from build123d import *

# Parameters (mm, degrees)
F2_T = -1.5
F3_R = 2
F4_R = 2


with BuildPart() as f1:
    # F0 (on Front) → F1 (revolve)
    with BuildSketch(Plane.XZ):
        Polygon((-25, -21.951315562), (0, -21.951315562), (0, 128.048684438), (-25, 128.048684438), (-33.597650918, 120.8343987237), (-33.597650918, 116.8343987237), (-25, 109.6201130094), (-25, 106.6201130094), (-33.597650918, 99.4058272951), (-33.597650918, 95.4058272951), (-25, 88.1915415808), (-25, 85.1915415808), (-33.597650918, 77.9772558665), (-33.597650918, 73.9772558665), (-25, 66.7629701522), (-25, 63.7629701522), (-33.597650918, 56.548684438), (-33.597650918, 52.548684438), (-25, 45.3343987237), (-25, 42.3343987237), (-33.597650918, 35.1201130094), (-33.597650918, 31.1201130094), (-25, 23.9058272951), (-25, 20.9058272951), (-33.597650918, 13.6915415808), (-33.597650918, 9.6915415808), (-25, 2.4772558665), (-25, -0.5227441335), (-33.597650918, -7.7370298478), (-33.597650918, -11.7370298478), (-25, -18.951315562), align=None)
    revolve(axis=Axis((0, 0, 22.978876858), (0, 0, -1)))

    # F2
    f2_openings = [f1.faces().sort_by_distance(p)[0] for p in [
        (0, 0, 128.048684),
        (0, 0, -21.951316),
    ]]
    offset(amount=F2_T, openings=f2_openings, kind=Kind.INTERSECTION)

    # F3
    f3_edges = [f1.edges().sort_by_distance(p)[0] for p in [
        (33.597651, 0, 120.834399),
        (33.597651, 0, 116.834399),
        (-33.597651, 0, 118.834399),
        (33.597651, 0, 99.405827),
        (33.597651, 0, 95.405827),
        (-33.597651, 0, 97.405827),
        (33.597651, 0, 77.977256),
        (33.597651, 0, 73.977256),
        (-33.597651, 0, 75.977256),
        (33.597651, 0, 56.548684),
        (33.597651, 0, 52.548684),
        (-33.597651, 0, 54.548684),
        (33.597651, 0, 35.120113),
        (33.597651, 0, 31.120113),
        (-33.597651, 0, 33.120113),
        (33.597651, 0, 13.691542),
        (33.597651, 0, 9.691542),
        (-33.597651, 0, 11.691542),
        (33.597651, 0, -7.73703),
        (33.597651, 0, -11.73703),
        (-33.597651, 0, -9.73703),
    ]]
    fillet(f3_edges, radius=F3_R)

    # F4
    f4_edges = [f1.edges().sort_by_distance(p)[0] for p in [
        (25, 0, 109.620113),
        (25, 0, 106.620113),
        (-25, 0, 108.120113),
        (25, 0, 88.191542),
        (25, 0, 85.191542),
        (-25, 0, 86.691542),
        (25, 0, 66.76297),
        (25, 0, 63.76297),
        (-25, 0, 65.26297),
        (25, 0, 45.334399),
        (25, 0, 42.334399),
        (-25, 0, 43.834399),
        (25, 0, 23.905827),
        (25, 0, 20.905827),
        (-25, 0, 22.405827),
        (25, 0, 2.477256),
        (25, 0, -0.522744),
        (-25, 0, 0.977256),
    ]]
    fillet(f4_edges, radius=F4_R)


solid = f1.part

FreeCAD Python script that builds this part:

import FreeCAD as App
import Part
import Sketcher
Q = App.Units.Quantity


def edges_at(feature, points):
    """Names of the edges that pass closest to the given points."""
    edges = feature.Shape.Edges
    near = lambda p: min(range(len(edges)), key=lambda i: edges[i].distToShape(Part.Vertex(*p))[0])
    return sorted({f"Edge{near(p) + 1}" for p in points})


def faces_at(feature, points):
    """Names of the faces that lie closest to the given points."""
    faces = feature.Shape.Faces
    near = lambda p: min(range(len(faces)), key=lambda i: faces[i].distToShape(Part.Vertex(*p))[0])
    return sorted({f"Face{near(p) + 1}" for p in points})

doc = App.newDocument("Part")
body = doc.addObject("PartDesign::Body", "Body")

sketch1 = doc.addObject("Sketcher::SketchObject", "Sketch")
body.addObject(sketch1)
sketch1.AttachmentSupport = (doc.XZ_Plane, [""])
sketch1.MapMode = "FlatFace"
sketch1.addGeometry(Part.LineSegment(App.Vector(-25, -21.951316, 0), App.Vector(0, -21.951316, 0)), False)
sketch1.addGeometry(Part.LineSegment(App.Vector(0, -21.951316, 0), App.Vector(0, 128.048684, 0)), False)
sketch1.addGeometry(Part.LineSegment(App.Vector(0, 128.048684, 0), App.Vector(-25, 128.048684, 0)), False)
sketch1.addGeometry(Part.LineSegment(App.Vector(-25, 128.048684, 0), App.Vector(-33.597651, 120.834399, 0)), False)
sketch1.addGeometry(Part.LineSegment(App.Vector(-33.597651, 120.834399, 0), App.Vector(-33.597651, 116.834399, 0)), False)
sketch1.addGeometry(Part.LineSegment(App.Vector(-33.597651, 116.834399, 0), App.Vector(-25, 109.620113, 0)), False)
sketch1.addGeometry(Part.LineSegment(App.Vector(-25, 109.620113, 0), App.Vector(-25, 106.620113, 0)), False)
sketch1.addGeometry(Part.LineSegment(App.Vector(-25, 106.620113, 0), App.Vector(-33.597651, 99.405827, 0)), False)
sketch1.addGeometry(Part.LineSegment(App.Vector(-33.597651, 99.405827, 0), App.Vector(-33.597651, 95.405827, 0)), False)
sketch1.addGeometry(Part.LineSegment(App.Vector(-33.597651, 95.405827, 0), App.Vector(-25, 88.191542, 0)), False)
sketch1.addGeometry(Part.LineSegment(App.Vector(-25, 88.191542, 0), App.Vector(-25, 85.191542, 0)), False)
sketch1.addGeometry(Part.LineSegment(App.Vector(-25, 85.191542, 0), App.Vector(-33.597651, 77.977256, 0)), False)
sketch1.addGeometry(Part.LineSegment(App.Vector(-33.597651, 77.977256, 0), App.Vector(-33.597651, 73.977256, 0)), False)
sketch1.addGeometry(Part.LineSegment(App.Vector(-33.597651, 73.977256, 0), App.Vector(-25, 66.76297, 0)), False)
sketch1.addGeometry(Part.LineSegment(App.Vector(-25, 66.76297, 0), App.Vector(-25, 63.76297, 0)), False)
sketch1.addGeometry(Part.LineSegment(App.Vector(-25, 63.76297, 0), App.Vector(-33.597651, 56.548684, 0)), False)
sketch1.addGeometry(Part.LineSegment(App.Vector(-33.597651, 56.548684, 0), App.Vector(-33.597651, 52.548684, 0)), False)
sketch1.addGeometry(Part.LineSegment(App.Vector(-33.597651, 52.548684, 0), App.Vector(-25, 45.334399, 0)), False)
sketch1.addGeometry(Part.LineSegment(App.Vector(-25, 45.334399, 0), App.Vector(-25, 42.334399, 0)), False)
sketch1.addGeometry(Part.LineSegment(App.Vector(-25, 42.334399, 0), App.Vector(-33.597651, 35.120113, 0)), False)
sketch1.addGeometry(Part.LineSegment(App.Vector(-33.597651, 35.120113, 0), App.Vector(-33.597651, 31.120113, 0)), False)
sketch1.addGeometry(Part.LineSegment(App.Vector(-33.597651, 31.120113, 0), App.Vector(-25, 23.905827, 0)), False)
sketch1.addGeometry(Part.LineSegment(App.Vector(-25, 23.905827, 0), App.Vector(-25, 20.905827, 0)), False)
sketch1.addGeometry(Part.LineSegment(App.Vector(-25, 20.905827, 0), App.Vector(-33.597651, 13.691542, 0)), False)
sketch1.addGeometry(Part.LineSegment(App.Vector(-33.597651, 13.691542, 0), App.Vector(-33.597651, 9.691542, 0)), False)
sketch1.addGeometry(Part.LineSegment(App.Vector(-33.597651, 9.691542, 0), App.Vector(-25, 2.477256, 0)), False)
sketch1.addGeometry(Part.LineSegment(App.Vector(-25, 2.477256, 0), App.Vector(-25, -0.522744, 0)), False)
sketch1.addGeometry(Part.LineSegment(App.Vector(-25, -0.522744, 0), App.Vector(-33.597651, -7.73703, 0)), False)
sketch1.addGeometry(Part.LineSegment(App.Vector(-33.597651, -7.73703, 0), App.Vector(-33.597651, -11.73703, 0)), False)
sketch1.addGeometry(Part.LineSegment(App.Vector(-33.597651, -11.73703, 0), App.Vector(-25, -18.951316, 0)), False)
sketch1.addGeometry(Part.LineSegment(App.Vector(-25, -18.951316, 0), App.Vector(-25, -21.951316, 0)), False)
sketch1.addConstraint(Sketcher.Constraint("Coincident", 0, 2, 1, 1))
sketch1.addConstraint(Sketcher.Constraint("Coincident", 1, 2, 2, 1))
sketch1.addConstraint(Sketcher.Constraint("Coincident", 2, 2, 3, 1))
sketch1.addConstraint(Sketcher.Constraint("Coincident", 3, 2, 4, 1))
sketch1.addConstraint(Sketcher.Constraint("Coincident", 4, 2, 5, 1))
sketch1.addConstraint(Sketcher.Constraint("Coincident", 5, 2, 6, 1))
sketch1.addConstraint(Sketcher.Constraint("Coincident", 6, 2, 7, 1))
sketch1.addConstraint(Sketcher.Constraint("Coincident", 7, 2, 8, 1))
sketch1.addConstraint(Sketcher.Constraint("Coincident", 8, 2, 9, 1))
sketch1.addConstraint(Sketcher.Constraint("Coincident", 9, 2, 10, 1))
sketch1.addConstraint(Sketcher.Constraint("Coincident", 10, 2, 11, 1))
sketch1.addConstraint(Sketcher.Constraint("Coincident", 11, 2, 12, 1))
sketch1.addConstraint(Sketcher.Constraint("Coincident", 12, 2, 13, 1))
sketch1.addConstraint(Sketcher.Constraint("Coincident", 13, 2, 14, 1))
sketch1.addConstraint(Sketcher.Constraint("Coincident", 14, 2, 15, 1))
sketch1.addConstraint(Sketcher.Constraint("Coincident", 15, 2, 16, 1))
sketch1.addConstraint(Sketcher.Constraint("Coincident", 16, 2, 17, 1))
sketch1.addConstraint(Sketcher.Constraint("Coincident", 17, 2, 18, 1))
sketch1.addConstraint(Sketcher.Constraint("Coincident", 18, 2, 19, 1))
sketch1.addConstraint(Sketcher.Constraint("Coincident", 19, 2, 20, 1))
sketch1.addConstraint(Sketcher.Constraint("Coincident", 20, 2, 21, 1))
sketch1.addConstraint(Sketcher.Constraint("Coincident", 21, 2, 22, 1))
sketch1.addConstraint(Sketcher.Constraint("Coincident", 22, 2, 23, 1))
sketch1.addConstraint(Sketcher.Constraint("Coincident", 23, 2, 24, 1))
sketch1.addConstraint(Sketcher.Constraint("Coincident", 24, 2, 25, 1))
sketch1.addConstraint(Sketcher.Constraint("Coincident", 25, 2, 26, 1))
sketch1.addConstraint(Sketcher.Constraint("Coincident", 26, 2, 27, 1))
sketch1.addConstraint(Sketcher.Constraint("Coincident", 27, 2, 28, 1))
sketch1.addConstraint(Sketcher.Constraint("Coincident", 28, 2, 29, 1))
sketch1.addConstraint(Sketcher.Constraint("Coincident", 29, 2, 30, 1))
sketch1.addConstraint(Sketcher.Constraint("Coincident", 30, 2, 0, 1))
sketch1.addConstraint(Sketcher.Constraint("Horizontal", 0))
sketch1.addConstraint(Sketcher.Constraint("Vertical", 1))
sketch1.addConstraint(Sketcher.Constraint("Horizontal", 2))
sketch1.addConstraint(Sketcher.Constraint("Vertical", 4))
sketch1.addConstraint(Sketcher.Constraint("Vertical", 6))
sketch1.addConstraint(Sketcher.Constraint("Vertical", 8))
sketch1.addConstraint(Sketcher.Constraint("Vertical", 10))
sketch1.addConstraint(Sketcher.Constraint("Vertical", 12))
sketch1.addConstraint(Sketcher.Constraint("Vertical", 14))
sketch1.addConstraint(Sketcher.Constraint("Vertical", 16))
sketch1.addConstraint(Sketcher.Constraint("Vertical", 18))
sketch1.addConstraint(Sketcher.Constraint("Vertical", 20))
sketch1.addConstraint(Sketcher.Constraint("Vertical", 22))
sketch1.addConstraint(Sketcher.Constraint("Vertical", 24))
sketch1.addConstraint(Sketcher.Constraint("Vertical", 26))
sketch1.addConstraint(Sketcher.Constraint("Vertical", 28))
sketch1.addConstraint(Sketcher.Constraint("Vertical", 30))
sketch1.addConstraint(Sketcher.Constraint("PointOnObject", 0, 2, -2))
sketch1.addConstraint(Sketcher.Constraint("Parallel", 3, 7))
sketch1.addConstraint(Sketcher.Constraint("Parallel", 5, 9))
sketch1.addConstraint(Sketcher.Constraint("Parallel", 7, 11))
sketch1.addConstraint(Sketcher.Constraint("Parallel", 9, 13))
sketch1.addConstraint(Sketcher.Constraint("Parallel", 11, 15))
sketch1.addConstraint(Sketcher.Constraint("Parallel", 13, 17))
sketch1.addConstraint(Sketcher.Constraint("Parallel", 15, 19))
sketch1.addConstraint(Sketcher.Constraint("Parallel", 17, 21))
sketch1.addConstraint(Sketcher.Constraint("Parallel", 19, 23))
sketch1.addConstraint(Sketcher.Constraint("Parallel", 21, 25))
sketch1.addConstraint(Sketcher.Constraint("Parallel", 23, 27))
sketch1.addConstraint(Sketcher.Constraint("Parallel", 25, 29))
sketch1.addConstraint(Sketcher.Constraint("Vertical", 2, 2, 5, 2))
sketch1.addConstraint(Sketcher.Constraint("Vertical", 4, 2, 7, 2))
sketch1.addConstraint(Sketcher.Constraint("Vertical", 6, 2, 9, 2))
sketch1.addConstraint(Sketcher.Constraint("Vertical", 8, 2, 11, 2))
sketch1.addConstraint(Sketcher.Constraint("Vertical", 10, 2, 13, 2))
sketch1.addConstraint(Sketcher.Constraint("Vertical", 12, 2, 15, 2))
sketch1.addConstraint(Sketcher.Constraint("Vertical", 14, 2, 17, 2))
sketch1.addConstraint(Sketcher.Constraint("Vertical", 16, 2, 19, 2))
sketch1.addConstraint(Sketcher.Constraint("Vertical", 18, 2, 21, 2))
sketch1.addConstraint(Sketcher.Constraint("Vertical", 20, 2, 23, 2))
sketch1.addConstraint(Sketcher.Constraint("Vertical", 22, 2, 25, 2))
sketch1.addConstraint(Sketcher.Constraint("Vertical", 24, 2, 27, 2))
sketch1.addConstraint(Sketcher.Constraint("Vertical", 26, 2, 29, 2))
sketch1.addConstraint(Sketcher.Constraint("Equal", 4, 8))
sketch1.addConstraint(Sketcher.Constraint("Equal", 6, 10))
sketch1.addConstraint(Sketcher.Constraint("Equal", 8, 12))
sketch1.addConstraint(Sketcher.Constraint("Equal", 10, 14))
sketch1.addConstraint(Sketcher.Constraint("Equal", 12, 16))
sketch1.addConstraint(Sketcher.Constraint("Equal", 14, 18))
sketch1.addConstraint(Sketcher.Constraint("Equal", 16, 20))
sketch1.addConstraint(Sketcher.Constraint("Equal", 18, 22))
sketch1.addConstraint(Sketcher.Constraint("Equal", 20, 24))
sketch1.addConstraint(Sketcher.Constraint("Equal", 22, 26))
sketch1.addConstraint(Sketcher.Constraint("Equal", 24, 28))
sketch1.addConstraint(Sketcher.Constraint("Equal", 26, 30))
sketch1.addConstraint(Sketcher.Constraint("Equal", 3, 5))
sketch1.addConstraint(Sketcher.Constraint("DistanceX", 0, 1, 0, 2, Q("25 mm")))
sketch1.addConstraint(Sketcher.Constraint("DistanceY", 1, 1, 1, 2, Q("150 mm")))
sketch1.addConstraint(Sketcher.Constraint("DistanceY", 4, 2, 4, 1, Q("4 mm")))
sketch1.addConstraint(Sketcher.Constraint("DistanceY", 6, 2, 6, 1, Q("3 mm")))
sketch1.addConstraint(Sketcher.Constraint("Angle", 3, Q("-140 deg")))
sketch1.addConstraint(Sketcher.Constraint("DistanceY", -1, 1, 3, 2, Q("120.834399 mm")))
revolution = doc.addObject("PartDesign::Revolution", "Revolution")
body.addObject(revolution)
revolution.Profile = sketch1
revolution.ReferenceAxis = (sketch1, ["V_Axis"])
revolution.Angle = 360
doc.recompute()

thickness = doc.addObject("PartDesign::Thickness", "Thickness")
body.addObject(thickness)
thickness.Base = (revolution, faces_at(revolution, [(0, 0, 128.049), (0, 0, -21.951)]))
thickness.Value = 1.5
thickness.Reversed = True
thickness.Join = "Intersection"
doc.recompute()

fillet = doc.addObject("PartDesign::Fillet", "Fillet")
body.addObject(fillet)
fillet.Base = (thickness, edges_at(thickness, [
    (33.598, 0, 120.834),
    (33.598, 0, 116.834),
    (-33.598, 0, 118.834),
    (33.598, 0, 99.406),
    (33.598, 0, 95.406),
    (-33.598, 0, 97.406),
    (33.598, 0, 77.977),
    (33.598, 0, 73.977),
    (-33.598, 0, 75.977),
    (33.598, 0, 56.549),
    (33.598, 0, 52.549),
    (-33.598, 0, 54.549),
    (33.598, 0, 35.12),
    (33.598, 0, 31.12),
    (-33.598, 0, 33.12),
    (33.598, 0, 13.692),
    (33.598, 0, 9.692),
    (-33.598, 0, 11.692),
    (33.598, 0, -7.737),
    (33.598, 0, -11.737),
    (-33.598, 0, -9.737),
]))
fillet.Radius = 2
doc.recompute()

fillet2 = doc.addObject("PartDesign::Fillet", "Fillet001")
body.addObject(fillet2)
fillet2.Base = (fillet, edges_at(fillet, [
    (25, 0, 109.62),
    (25, 0, 106.62),
    (-25, 0, 108.12),
    (25, 0, 88.192),
    (25, 0, 85.192),
    (-25, 0, 86.692),
    (25, 0, 66.763),
    (25, 0, 63.763),
    (-25, 0, 65.263),
    (25, 0, 45.334),
    (25, 0, 42.334),
    (-25, 0, 43.834),
    (25, 0, 23.906),
    (25, 0, 20.906),
    (-25, 0, 22.406),
    (25, 0, 2.477),
    (25, 0, -0.523),
    (-25, 0, 0.977),
]))
fillet2.Radius = 2

doc.recompute()
